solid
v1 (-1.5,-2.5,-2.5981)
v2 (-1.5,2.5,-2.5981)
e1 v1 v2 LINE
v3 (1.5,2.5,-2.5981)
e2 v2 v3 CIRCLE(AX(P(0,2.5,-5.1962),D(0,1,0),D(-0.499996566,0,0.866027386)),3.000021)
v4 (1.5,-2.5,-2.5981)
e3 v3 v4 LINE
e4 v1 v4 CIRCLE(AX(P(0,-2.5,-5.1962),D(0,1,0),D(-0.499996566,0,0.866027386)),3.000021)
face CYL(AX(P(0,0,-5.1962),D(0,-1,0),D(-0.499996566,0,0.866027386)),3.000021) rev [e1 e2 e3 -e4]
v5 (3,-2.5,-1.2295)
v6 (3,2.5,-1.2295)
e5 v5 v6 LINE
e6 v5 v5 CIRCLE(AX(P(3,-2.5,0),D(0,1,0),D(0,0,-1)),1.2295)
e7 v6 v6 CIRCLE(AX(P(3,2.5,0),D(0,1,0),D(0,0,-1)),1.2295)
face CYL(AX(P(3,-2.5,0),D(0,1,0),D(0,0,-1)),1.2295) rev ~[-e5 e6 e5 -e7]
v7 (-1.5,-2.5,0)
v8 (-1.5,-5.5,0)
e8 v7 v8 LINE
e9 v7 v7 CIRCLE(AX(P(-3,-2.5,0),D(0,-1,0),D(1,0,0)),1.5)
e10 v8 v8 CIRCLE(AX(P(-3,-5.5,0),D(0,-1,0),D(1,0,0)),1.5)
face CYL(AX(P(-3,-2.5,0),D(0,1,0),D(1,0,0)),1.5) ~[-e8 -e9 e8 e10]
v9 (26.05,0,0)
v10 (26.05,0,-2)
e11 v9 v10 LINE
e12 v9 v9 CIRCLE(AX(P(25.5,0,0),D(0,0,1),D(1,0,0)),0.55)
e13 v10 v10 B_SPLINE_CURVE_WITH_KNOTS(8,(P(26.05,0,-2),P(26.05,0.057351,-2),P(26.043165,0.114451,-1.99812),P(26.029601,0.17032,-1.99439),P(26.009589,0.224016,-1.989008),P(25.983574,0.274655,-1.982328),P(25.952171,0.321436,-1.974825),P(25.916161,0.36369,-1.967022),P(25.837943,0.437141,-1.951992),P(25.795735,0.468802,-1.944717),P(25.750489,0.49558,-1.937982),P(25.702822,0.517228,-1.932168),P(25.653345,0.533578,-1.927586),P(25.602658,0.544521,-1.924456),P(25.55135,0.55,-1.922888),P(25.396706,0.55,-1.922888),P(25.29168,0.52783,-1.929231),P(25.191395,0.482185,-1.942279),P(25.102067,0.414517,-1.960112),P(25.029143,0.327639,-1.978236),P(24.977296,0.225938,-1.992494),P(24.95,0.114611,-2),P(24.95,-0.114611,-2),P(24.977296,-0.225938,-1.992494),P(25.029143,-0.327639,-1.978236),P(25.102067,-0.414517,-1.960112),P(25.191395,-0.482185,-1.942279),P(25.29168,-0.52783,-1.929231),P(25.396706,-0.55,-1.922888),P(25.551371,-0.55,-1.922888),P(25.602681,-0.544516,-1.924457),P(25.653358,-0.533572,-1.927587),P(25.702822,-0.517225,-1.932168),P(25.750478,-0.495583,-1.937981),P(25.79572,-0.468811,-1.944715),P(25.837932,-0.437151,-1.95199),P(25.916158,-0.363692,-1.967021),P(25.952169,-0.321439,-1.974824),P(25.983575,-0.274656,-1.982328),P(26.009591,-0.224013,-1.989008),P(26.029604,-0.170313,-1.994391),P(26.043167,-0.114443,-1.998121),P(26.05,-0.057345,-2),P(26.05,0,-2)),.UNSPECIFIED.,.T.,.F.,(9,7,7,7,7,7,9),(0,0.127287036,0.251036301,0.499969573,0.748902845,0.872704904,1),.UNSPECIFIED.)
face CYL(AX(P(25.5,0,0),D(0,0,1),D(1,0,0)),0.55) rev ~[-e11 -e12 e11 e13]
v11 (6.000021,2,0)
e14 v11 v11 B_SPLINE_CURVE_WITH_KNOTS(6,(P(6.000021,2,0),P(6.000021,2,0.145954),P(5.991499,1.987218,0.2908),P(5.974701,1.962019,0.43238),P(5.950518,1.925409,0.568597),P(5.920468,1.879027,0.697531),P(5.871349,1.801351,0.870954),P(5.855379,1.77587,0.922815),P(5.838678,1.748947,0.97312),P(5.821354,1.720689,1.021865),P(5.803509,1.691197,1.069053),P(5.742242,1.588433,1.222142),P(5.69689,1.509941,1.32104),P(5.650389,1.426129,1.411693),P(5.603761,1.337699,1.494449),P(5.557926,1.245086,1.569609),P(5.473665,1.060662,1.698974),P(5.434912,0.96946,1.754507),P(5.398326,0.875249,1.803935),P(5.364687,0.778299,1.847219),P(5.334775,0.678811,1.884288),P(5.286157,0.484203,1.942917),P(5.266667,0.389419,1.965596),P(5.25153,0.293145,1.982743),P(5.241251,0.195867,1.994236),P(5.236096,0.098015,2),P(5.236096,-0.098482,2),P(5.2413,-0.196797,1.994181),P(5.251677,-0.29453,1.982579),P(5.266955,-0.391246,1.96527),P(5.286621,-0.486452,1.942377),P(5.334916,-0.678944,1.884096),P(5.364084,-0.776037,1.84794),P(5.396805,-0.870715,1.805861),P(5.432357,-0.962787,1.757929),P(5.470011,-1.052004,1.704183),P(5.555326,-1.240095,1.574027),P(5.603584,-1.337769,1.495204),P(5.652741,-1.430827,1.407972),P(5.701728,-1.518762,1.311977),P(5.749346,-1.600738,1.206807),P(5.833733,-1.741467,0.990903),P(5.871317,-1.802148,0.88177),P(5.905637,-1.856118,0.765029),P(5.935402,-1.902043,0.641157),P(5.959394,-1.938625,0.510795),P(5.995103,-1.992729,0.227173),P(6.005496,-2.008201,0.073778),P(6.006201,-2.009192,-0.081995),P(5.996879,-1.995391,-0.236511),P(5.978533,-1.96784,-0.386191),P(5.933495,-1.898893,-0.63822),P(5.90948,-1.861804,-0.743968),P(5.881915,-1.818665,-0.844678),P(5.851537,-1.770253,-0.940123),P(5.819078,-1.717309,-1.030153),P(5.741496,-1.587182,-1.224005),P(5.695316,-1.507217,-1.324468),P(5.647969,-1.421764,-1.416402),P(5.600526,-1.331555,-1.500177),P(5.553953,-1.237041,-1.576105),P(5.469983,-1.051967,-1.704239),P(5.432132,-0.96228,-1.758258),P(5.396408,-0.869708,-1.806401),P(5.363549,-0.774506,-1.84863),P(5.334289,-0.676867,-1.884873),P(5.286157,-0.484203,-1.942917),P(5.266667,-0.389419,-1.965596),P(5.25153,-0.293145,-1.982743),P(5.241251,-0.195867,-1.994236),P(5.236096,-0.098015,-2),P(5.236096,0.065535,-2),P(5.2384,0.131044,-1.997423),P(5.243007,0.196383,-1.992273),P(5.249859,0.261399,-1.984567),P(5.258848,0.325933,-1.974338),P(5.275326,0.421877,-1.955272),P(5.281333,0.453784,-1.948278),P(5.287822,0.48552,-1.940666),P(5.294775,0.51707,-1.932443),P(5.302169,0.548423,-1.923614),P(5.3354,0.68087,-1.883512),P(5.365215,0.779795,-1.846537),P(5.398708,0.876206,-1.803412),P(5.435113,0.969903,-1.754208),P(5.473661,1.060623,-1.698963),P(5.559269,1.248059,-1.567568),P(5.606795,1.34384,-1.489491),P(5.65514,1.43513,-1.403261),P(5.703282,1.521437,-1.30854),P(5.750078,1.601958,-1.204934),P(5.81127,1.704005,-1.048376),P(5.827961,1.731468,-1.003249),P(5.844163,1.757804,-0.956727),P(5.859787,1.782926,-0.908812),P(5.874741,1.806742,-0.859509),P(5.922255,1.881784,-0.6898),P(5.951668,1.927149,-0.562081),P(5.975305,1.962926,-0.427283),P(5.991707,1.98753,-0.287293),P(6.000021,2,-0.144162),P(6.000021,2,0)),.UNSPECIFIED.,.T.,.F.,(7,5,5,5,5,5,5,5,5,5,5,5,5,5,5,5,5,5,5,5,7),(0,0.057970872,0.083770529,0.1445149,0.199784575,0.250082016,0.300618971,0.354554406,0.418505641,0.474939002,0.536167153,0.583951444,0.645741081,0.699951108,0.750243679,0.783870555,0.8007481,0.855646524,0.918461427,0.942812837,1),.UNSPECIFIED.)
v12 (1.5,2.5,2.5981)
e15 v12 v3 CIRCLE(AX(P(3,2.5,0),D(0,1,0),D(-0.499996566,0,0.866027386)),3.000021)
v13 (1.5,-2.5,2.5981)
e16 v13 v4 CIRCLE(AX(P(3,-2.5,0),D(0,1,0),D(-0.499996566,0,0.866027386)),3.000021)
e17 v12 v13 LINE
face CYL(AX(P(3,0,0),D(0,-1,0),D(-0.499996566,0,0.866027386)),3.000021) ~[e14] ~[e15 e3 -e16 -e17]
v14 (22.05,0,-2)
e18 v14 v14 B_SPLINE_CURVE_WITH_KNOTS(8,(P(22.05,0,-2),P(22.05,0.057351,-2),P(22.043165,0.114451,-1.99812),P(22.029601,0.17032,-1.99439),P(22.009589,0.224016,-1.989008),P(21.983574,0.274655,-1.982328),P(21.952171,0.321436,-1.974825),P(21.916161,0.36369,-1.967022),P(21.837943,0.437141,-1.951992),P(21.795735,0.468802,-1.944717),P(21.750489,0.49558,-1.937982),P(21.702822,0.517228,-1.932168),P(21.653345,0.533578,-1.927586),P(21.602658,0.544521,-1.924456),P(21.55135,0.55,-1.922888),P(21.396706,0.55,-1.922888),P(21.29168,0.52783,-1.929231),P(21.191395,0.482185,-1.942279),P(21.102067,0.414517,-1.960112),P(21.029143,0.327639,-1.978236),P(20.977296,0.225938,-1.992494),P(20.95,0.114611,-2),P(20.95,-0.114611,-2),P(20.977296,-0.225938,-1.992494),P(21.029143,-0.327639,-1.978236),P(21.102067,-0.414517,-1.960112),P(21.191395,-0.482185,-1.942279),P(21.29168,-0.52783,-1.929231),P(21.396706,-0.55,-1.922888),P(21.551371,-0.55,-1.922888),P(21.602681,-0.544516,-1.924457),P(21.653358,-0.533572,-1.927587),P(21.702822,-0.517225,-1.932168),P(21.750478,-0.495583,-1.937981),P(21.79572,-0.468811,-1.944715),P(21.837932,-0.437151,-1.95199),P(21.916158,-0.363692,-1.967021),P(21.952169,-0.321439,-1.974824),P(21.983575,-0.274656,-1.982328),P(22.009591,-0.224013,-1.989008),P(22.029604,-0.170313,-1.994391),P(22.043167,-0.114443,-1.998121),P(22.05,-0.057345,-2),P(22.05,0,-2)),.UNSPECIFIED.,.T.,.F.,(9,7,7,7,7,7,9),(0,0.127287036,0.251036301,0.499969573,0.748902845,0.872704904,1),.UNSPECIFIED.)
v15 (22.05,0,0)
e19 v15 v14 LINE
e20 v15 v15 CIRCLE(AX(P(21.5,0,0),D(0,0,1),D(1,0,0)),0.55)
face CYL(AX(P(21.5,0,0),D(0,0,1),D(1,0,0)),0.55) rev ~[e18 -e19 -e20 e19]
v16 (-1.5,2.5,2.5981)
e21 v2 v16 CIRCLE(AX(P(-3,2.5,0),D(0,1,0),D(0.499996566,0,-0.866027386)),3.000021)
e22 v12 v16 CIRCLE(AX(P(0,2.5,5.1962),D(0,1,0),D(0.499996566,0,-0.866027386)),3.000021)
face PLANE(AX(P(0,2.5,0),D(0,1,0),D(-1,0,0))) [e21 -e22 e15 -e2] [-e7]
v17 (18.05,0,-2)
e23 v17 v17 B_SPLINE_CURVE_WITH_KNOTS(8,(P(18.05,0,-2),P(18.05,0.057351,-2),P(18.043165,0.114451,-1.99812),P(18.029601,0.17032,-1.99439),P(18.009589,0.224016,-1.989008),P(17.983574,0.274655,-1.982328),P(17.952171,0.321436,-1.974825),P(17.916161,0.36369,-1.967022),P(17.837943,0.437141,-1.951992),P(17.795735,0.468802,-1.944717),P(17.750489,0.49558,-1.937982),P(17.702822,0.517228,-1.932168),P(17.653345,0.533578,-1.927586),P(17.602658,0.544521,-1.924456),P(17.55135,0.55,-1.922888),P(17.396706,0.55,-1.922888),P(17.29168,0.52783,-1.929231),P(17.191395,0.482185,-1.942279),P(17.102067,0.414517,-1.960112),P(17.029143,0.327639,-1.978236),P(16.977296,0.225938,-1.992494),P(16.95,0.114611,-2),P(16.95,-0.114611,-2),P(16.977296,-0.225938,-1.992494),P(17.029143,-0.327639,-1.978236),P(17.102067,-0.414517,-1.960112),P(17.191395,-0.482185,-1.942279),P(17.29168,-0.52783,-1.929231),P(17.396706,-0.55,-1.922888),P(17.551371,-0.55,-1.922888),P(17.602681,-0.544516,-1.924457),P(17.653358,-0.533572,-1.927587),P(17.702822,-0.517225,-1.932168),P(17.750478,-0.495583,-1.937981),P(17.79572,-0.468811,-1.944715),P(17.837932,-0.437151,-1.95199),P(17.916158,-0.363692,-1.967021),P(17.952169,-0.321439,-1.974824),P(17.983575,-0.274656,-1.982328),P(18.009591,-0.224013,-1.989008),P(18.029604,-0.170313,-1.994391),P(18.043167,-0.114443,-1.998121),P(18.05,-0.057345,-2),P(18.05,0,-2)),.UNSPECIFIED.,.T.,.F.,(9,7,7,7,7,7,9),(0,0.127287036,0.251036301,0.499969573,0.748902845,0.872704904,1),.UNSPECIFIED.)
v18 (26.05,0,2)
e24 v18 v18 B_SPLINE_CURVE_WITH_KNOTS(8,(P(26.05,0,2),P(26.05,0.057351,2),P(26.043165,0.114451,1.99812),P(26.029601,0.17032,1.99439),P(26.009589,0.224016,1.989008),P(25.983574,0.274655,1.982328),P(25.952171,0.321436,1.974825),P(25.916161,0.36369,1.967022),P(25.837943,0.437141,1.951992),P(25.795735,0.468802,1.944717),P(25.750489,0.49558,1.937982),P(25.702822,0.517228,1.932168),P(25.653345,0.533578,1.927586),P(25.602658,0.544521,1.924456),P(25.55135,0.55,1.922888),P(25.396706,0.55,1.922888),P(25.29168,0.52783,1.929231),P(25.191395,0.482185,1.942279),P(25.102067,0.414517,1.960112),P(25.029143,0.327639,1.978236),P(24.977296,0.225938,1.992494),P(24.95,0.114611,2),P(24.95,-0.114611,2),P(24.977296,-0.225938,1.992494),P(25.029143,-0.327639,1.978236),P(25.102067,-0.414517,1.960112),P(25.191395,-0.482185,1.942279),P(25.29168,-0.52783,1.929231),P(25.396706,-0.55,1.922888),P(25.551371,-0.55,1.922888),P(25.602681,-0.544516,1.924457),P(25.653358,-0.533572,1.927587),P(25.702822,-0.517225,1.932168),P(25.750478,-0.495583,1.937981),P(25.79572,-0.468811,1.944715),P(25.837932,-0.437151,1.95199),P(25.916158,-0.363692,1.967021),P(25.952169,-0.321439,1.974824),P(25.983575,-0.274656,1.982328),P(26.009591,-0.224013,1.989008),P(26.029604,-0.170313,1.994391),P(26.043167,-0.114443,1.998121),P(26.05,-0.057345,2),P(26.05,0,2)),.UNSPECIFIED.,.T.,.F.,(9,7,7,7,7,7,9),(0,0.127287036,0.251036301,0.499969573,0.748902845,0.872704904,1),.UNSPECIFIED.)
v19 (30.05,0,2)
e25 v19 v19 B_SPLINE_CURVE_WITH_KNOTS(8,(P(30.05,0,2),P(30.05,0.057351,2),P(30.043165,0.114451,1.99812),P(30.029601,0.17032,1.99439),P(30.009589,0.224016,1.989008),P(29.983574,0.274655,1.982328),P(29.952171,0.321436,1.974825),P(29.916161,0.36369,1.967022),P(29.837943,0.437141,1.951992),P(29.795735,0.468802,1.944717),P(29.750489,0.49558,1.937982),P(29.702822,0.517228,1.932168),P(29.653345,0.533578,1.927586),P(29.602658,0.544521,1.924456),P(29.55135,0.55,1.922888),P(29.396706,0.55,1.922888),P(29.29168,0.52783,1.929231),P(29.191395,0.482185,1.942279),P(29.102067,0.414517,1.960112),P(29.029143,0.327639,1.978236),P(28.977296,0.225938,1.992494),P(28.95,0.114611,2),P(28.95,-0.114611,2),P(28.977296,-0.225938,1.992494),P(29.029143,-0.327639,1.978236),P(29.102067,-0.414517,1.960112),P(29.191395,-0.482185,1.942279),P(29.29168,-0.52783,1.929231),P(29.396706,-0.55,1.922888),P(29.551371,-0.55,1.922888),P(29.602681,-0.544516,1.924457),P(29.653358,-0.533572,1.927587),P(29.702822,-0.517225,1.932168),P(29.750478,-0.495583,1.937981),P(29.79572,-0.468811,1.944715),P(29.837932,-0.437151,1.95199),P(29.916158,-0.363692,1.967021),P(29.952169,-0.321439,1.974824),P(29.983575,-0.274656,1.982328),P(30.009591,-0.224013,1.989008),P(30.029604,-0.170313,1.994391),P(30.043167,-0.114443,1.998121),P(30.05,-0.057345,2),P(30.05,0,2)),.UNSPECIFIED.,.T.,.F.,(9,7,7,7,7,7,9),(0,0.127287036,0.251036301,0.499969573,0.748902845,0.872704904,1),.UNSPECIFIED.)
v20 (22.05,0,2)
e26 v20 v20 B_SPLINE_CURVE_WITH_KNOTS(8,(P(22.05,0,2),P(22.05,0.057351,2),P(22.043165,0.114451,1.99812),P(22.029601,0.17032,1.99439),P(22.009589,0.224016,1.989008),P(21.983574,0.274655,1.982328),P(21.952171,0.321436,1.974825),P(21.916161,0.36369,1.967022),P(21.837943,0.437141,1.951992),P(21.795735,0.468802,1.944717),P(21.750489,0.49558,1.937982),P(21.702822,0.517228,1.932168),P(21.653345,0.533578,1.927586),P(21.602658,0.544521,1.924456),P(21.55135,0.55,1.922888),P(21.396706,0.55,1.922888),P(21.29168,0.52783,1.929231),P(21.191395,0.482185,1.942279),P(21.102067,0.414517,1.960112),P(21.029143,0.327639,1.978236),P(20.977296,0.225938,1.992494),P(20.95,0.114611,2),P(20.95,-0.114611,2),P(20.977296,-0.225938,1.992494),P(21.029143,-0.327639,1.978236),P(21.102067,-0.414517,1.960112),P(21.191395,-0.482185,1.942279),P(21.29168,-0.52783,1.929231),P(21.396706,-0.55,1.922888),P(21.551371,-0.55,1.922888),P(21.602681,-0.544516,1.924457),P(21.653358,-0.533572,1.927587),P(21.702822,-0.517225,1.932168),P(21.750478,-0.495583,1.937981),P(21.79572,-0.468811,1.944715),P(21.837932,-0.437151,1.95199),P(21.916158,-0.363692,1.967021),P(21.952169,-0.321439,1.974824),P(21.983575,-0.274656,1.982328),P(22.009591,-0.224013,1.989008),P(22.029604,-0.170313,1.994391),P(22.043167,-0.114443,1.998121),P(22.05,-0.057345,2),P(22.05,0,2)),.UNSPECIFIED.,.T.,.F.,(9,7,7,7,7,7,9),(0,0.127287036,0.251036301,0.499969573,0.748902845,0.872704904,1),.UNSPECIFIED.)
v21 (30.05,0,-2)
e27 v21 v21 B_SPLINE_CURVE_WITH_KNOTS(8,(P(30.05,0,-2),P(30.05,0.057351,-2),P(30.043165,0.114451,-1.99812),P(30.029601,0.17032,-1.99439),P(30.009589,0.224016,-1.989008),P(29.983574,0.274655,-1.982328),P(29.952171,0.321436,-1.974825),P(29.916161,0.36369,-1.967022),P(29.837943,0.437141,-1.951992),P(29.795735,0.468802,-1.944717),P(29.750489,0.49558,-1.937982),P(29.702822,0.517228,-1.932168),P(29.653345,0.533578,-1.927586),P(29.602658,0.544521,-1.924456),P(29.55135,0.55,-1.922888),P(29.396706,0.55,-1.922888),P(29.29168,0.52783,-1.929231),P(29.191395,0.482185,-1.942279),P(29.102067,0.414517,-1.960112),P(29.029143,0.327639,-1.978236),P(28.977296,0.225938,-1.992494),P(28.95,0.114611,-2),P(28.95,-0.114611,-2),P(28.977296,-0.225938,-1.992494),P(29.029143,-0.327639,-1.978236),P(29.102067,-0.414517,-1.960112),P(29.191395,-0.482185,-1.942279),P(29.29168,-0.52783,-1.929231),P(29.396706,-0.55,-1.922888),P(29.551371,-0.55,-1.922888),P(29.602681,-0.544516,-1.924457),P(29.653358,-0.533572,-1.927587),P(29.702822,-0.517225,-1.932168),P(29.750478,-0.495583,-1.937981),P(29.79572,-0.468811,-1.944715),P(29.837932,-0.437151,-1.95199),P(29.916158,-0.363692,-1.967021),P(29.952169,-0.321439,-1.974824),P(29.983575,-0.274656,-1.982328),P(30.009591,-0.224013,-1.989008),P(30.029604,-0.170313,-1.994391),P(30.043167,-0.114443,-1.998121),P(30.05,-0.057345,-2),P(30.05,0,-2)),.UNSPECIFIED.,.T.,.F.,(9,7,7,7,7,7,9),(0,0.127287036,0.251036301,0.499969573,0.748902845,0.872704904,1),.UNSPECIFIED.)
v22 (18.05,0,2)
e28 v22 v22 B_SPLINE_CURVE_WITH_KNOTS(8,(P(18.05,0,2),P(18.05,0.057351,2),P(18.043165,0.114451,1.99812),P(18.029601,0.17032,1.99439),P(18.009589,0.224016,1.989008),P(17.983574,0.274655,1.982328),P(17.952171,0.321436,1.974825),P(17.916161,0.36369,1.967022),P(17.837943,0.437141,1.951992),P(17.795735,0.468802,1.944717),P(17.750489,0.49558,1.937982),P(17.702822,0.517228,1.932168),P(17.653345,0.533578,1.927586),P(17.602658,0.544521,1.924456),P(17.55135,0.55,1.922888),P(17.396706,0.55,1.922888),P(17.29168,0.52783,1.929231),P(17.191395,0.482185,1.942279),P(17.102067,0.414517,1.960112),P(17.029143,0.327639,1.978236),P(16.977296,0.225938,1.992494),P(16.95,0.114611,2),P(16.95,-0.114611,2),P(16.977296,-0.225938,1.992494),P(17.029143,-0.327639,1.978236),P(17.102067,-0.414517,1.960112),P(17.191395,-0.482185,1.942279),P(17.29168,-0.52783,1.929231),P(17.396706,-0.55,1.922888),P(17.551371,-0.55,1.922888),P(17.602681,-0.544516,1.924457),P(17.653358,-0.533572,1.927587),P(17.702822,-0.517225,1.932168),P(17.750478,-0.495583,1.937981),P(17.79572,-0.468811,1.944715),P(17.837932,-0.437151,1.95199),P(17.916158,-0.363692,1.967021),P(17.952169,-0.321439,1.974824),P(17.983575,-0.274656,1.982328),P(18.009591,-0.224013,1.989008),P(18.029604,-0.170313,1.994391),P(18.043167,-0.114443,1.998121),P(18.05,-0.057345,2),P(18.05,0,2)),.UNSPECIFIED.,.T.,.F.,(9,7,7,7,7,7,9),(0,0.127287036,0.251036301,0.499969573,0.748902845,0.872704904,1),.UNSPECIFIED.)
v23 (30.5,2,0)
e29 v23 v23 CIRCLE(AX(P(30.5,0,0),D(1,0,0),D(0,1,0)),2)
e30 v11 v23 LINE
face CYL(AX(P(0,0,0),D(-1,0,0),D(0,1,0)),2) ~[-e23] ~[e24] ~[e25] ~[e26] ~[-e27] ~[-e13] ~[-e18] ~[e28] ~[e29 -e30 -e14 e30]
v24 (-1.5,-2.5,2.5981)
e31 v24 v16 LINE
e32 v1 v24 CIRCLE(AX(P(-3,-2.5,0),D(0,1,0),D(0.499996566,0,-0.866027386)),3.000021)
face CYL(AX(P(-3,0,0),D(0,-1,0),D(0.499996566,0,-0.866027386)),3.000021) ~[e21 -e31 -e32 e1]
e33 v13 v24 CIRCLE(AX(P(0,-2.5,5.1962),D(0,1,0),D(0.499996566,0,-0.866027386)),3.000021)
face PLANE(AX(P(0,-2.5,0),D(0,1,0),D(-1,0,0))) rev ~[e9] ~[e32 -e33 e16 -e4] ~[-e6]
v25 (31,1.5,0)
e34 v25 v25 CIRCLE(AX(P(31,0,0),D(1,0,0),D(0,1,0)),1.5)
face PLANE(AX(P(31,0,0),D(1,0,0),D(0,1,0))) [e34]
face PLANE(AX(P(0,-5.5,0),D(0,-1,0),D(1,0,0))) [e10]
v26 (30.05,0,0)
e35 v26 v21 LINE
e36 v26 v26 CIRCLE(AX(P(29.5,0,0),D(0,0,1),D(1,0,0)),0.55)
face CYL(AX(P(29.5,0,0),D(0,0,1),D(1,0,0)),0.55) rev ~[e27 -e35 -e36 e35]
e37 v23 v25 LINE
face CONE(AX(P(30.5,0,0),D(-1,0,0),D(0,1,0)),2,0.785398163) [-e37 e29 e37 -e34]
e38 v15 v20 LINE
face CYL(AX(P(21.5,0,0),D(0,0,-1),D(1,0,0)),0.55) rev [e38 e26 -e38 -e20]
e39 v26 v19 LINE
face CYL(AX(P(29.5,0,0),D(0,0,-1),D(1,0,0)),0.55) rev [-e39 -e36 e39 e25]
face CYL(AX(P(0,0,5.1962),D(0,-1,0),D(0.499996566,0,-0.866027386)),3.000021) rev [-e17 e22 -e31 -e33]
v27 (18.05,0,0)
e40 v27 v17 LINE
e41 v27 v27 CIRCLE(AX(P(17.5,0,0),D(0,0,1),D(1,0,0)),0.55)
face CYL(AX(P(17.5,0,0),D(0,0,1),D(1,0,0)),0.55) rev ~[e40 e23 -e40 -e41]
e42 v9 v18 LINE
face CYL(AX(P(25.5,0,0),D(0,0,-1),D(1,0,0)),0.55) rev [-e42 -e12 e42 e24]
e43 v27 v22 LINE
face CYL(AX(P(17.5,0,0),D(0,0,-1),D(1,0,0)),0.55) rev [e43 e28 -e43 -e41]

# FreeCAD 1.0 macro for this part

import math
import FreeCAD as App
import Part
import Sketcher
from FreeCAD import Vector


def edges_at(feature, points):
    """Names of the edges that pass closest to the given points."""
    edges = feature.Shape.Edges
    near = lambda p: min(range(len(edges)), key=lambda i: edges[i].distToShape(Part.Vertex(*p))[0])
    return sorted({f"Edge{near(p) + 1}" for p in points})

doc = App.newDocument("Part")
body = doc.addObject("PartDesign::Body", "Body")

# Sketch on XZ plane
sketch1 = doc.addObject("Sketcher::SketchObject", "Sketch")
body.addObject(sketch1)
sketch1.AttachmentSupport = (doc.XZ_Plane, [""])
sketch1.MapMode = "FlatFace"
sketch1.addGeometry([
    Part.ArcOfCircle(Part.Circle(Vector(0, -5.2, 0), Vector(0, 0, 1), 3), math.radians(60), math.radians(120)),
    Part.ArcOfCircle(Part.Circle(Vector(-3, 0, 0), Vector(0, 0, 1), 3), math.radians(60), math.radians(300)),
    Part.ArcOfCircle(Part.Circle(Vector(0, 5.2, 0), Vector(0, 0, 1), 3), math.radians(-120), math.radians(-60)),
    Part.ArcOfCircle(Part.Circle(Vector(3, 0, 0), Vector(0, 0, 1), 3), math.radians(-120), math.radians(120)),
], False)
sketch1.addConstraint([
    Sketcher.Constraint("Tangent", 0, 2, 1, 2),
    Sketcher.Constraint("Tangent", 1, 1, 2, 1),
    Sketcher.Constraint("Tangent", 2, 2, 3, 2),
    Sketcher.Constraint("Tangent", 3, 1, 0, 1),
    Sketcher.Constraint("Equal", 0, 1),
    Sketcher.Constraint("Equal", 1, 2),
    Sketcher.Constraint("Equal", 2, 3),
    Sketcher.Constraint("Symmetric", 0, 3, 2, 3, -1, 1),
    Sketcher.Constraint("PointOnObject", 0, 3, -2),
    Sketcher.Constraint("Radius", 0, 3.0),
    Sketcher.Constraint("DistanceX", 1, 3, -1, 1, 3.0),
])
pad1 = doc.addObject("PartDesign::Pad", "Pad")
body.addObject(pad1)
pad1.Profile = sketch1
pad1.Length = 5
pad1.Midplane = True

# Sketch on YZ plane
sketch2 = doc.addObject("Sketcher::SketchObject", "Sketch001")
body.addObject(sketch2)
sketch2.AttachmentSupport = (doc.YZ_Plane, [""])
sketch2.MapMode = "FlatFace"
sketch2.addGeometry(Part.Circle(Vector(0, 0, 0), Vector(0, 0, 1), 2), False)
sketch2.addConstraint([
    Sketcher.Constraint("Coincident", 0, 3, -1, 1),
    Sketcher.Constraint("Diameter", 0, 4.0),
])
pad2 = doc.addObject("PartDesign::Pad", "Pad001")
body.addObject(pad2)
pad2.Profile = sketch2
pad2.Length = 31

# Sketch on XZ plane
sketch3 = doc.addObject("Sketcher::SketchObject", "Sketch002")
body.addObject(sketch3)
sketch3.AttachmentSupport = (doc.XZ_Plane, [""])
sketch3.MapMode = "FlatFace"
sketch3.AttachmentOffset = App.Placement(Vector(0, 0, 2.5), App.Rotation())
sketch3.addGeometry(Part.Circle(Vector(-3, 0, 0), Vector(0, 0, 1), 1.5), False)
sketch3.addConstraint([
    Sketcher.Constraint("PointOnObject", 0, 3, -1),
    Sketcher.Constraint("Diameter", 0, 3.0),
    Sketcher.Constraint("DistanceX", 0, 3, -1, 1, 3.0),
])
pad3 = doc.addObject("PartDesign::Pad", "Pad002")
body.addObject(pad3)
pad3.Profile = sketch3
pad3.Length = 3

# Sketch on XZ plane
sketch4 = doc.addObject("Sketcher::SketchObject", "Sketch003")
body.addObject(sketch4)
sketch4.AttachmentSupport = (doc.XZ_Plane, [""])
sketch4.MapMode = "FlatFace"
sketch4.AttachmentOffset = App.Placement(Vector(0, 0, 2.5), App.Rotation())
sketch4.addGeometry(Part.Circle(Vector(3, 0, 0), Vector(0, 0, 1), 1.2), False)
sketch4.addConstraint([
    Sketcher.Constraint("PointOnObject", 0, 3, -1),
    Sketcher.Constraint("Diameter", 0, 2.459),
    Sketcher.Constraint("DistanceX", -1, 1, 0, 3, 3.0),
])
doc.recompute()
hole = doc.addObject("PartDesign::Hole", "Hole")
body.addObject(hole)
hole.Profile = sketch4
hole.ThreadType = "None"
hole.Diameter = 2.459
hole.DepthType = "Dimension"
hole.Depth = 8.8
hole.DrillPoint = "Angled"
hole.DrillPointAngle = 118

# Sketch on XY plane
sketch5 = doc.addObject("Sketcher::SketchObject", "Sketch004")
body.addObject(sketch5)
sketch5.AttachmentSupport = (doc.XY_Plane, [""])
sketch5.MapMode = "FlatFace"
sketch5.addGeometry(Part.Circle(Vector(29.5, 0, 0), Vector(0, 0, 1), 0.6), False)
sketch5.addConstraint([
    Sketcher.Constraint("PointOnObject", 0, 3, -1),
    Sketcher.Constraint("Diameter", 0, 1.1),
    Sketcher.Constraint("DistanceX", -1, 1, 0, 3, 29.5),
])
pocket1 = doc.addObject("PartDesign::Pocket", "Pocket")
body.addObject(pocket1)
pocket1.Profile = sketch5
pocket1.Length = 17.5
pocket1.Midplane = True
doc.recompute()

linearpattern = doc.addObject("PartDesign::LinearPattern", "LinearPattern")
body.addObject(linearpattern)
linearpattern.Originals = [pocket1]
linearpattern.Direction = (doc.X_Axis, [""])
linearpattern.Mode = "offset"
linearpattern.Offset = 4
linearpattern.Occurrences = 4
linearpattern.Reversed = True
body.Tip = linearpattern
doc.recompute()

chamfer = doc.addObject("PartDesign::Chamfer", "Chamfer")
body.addObject(chamfer)
chamfer.Base = (linearpattern, edges_at(linearpattern, [(31, -2, 0)]))
chamfer.Size = 0.5

doc.recompute()
